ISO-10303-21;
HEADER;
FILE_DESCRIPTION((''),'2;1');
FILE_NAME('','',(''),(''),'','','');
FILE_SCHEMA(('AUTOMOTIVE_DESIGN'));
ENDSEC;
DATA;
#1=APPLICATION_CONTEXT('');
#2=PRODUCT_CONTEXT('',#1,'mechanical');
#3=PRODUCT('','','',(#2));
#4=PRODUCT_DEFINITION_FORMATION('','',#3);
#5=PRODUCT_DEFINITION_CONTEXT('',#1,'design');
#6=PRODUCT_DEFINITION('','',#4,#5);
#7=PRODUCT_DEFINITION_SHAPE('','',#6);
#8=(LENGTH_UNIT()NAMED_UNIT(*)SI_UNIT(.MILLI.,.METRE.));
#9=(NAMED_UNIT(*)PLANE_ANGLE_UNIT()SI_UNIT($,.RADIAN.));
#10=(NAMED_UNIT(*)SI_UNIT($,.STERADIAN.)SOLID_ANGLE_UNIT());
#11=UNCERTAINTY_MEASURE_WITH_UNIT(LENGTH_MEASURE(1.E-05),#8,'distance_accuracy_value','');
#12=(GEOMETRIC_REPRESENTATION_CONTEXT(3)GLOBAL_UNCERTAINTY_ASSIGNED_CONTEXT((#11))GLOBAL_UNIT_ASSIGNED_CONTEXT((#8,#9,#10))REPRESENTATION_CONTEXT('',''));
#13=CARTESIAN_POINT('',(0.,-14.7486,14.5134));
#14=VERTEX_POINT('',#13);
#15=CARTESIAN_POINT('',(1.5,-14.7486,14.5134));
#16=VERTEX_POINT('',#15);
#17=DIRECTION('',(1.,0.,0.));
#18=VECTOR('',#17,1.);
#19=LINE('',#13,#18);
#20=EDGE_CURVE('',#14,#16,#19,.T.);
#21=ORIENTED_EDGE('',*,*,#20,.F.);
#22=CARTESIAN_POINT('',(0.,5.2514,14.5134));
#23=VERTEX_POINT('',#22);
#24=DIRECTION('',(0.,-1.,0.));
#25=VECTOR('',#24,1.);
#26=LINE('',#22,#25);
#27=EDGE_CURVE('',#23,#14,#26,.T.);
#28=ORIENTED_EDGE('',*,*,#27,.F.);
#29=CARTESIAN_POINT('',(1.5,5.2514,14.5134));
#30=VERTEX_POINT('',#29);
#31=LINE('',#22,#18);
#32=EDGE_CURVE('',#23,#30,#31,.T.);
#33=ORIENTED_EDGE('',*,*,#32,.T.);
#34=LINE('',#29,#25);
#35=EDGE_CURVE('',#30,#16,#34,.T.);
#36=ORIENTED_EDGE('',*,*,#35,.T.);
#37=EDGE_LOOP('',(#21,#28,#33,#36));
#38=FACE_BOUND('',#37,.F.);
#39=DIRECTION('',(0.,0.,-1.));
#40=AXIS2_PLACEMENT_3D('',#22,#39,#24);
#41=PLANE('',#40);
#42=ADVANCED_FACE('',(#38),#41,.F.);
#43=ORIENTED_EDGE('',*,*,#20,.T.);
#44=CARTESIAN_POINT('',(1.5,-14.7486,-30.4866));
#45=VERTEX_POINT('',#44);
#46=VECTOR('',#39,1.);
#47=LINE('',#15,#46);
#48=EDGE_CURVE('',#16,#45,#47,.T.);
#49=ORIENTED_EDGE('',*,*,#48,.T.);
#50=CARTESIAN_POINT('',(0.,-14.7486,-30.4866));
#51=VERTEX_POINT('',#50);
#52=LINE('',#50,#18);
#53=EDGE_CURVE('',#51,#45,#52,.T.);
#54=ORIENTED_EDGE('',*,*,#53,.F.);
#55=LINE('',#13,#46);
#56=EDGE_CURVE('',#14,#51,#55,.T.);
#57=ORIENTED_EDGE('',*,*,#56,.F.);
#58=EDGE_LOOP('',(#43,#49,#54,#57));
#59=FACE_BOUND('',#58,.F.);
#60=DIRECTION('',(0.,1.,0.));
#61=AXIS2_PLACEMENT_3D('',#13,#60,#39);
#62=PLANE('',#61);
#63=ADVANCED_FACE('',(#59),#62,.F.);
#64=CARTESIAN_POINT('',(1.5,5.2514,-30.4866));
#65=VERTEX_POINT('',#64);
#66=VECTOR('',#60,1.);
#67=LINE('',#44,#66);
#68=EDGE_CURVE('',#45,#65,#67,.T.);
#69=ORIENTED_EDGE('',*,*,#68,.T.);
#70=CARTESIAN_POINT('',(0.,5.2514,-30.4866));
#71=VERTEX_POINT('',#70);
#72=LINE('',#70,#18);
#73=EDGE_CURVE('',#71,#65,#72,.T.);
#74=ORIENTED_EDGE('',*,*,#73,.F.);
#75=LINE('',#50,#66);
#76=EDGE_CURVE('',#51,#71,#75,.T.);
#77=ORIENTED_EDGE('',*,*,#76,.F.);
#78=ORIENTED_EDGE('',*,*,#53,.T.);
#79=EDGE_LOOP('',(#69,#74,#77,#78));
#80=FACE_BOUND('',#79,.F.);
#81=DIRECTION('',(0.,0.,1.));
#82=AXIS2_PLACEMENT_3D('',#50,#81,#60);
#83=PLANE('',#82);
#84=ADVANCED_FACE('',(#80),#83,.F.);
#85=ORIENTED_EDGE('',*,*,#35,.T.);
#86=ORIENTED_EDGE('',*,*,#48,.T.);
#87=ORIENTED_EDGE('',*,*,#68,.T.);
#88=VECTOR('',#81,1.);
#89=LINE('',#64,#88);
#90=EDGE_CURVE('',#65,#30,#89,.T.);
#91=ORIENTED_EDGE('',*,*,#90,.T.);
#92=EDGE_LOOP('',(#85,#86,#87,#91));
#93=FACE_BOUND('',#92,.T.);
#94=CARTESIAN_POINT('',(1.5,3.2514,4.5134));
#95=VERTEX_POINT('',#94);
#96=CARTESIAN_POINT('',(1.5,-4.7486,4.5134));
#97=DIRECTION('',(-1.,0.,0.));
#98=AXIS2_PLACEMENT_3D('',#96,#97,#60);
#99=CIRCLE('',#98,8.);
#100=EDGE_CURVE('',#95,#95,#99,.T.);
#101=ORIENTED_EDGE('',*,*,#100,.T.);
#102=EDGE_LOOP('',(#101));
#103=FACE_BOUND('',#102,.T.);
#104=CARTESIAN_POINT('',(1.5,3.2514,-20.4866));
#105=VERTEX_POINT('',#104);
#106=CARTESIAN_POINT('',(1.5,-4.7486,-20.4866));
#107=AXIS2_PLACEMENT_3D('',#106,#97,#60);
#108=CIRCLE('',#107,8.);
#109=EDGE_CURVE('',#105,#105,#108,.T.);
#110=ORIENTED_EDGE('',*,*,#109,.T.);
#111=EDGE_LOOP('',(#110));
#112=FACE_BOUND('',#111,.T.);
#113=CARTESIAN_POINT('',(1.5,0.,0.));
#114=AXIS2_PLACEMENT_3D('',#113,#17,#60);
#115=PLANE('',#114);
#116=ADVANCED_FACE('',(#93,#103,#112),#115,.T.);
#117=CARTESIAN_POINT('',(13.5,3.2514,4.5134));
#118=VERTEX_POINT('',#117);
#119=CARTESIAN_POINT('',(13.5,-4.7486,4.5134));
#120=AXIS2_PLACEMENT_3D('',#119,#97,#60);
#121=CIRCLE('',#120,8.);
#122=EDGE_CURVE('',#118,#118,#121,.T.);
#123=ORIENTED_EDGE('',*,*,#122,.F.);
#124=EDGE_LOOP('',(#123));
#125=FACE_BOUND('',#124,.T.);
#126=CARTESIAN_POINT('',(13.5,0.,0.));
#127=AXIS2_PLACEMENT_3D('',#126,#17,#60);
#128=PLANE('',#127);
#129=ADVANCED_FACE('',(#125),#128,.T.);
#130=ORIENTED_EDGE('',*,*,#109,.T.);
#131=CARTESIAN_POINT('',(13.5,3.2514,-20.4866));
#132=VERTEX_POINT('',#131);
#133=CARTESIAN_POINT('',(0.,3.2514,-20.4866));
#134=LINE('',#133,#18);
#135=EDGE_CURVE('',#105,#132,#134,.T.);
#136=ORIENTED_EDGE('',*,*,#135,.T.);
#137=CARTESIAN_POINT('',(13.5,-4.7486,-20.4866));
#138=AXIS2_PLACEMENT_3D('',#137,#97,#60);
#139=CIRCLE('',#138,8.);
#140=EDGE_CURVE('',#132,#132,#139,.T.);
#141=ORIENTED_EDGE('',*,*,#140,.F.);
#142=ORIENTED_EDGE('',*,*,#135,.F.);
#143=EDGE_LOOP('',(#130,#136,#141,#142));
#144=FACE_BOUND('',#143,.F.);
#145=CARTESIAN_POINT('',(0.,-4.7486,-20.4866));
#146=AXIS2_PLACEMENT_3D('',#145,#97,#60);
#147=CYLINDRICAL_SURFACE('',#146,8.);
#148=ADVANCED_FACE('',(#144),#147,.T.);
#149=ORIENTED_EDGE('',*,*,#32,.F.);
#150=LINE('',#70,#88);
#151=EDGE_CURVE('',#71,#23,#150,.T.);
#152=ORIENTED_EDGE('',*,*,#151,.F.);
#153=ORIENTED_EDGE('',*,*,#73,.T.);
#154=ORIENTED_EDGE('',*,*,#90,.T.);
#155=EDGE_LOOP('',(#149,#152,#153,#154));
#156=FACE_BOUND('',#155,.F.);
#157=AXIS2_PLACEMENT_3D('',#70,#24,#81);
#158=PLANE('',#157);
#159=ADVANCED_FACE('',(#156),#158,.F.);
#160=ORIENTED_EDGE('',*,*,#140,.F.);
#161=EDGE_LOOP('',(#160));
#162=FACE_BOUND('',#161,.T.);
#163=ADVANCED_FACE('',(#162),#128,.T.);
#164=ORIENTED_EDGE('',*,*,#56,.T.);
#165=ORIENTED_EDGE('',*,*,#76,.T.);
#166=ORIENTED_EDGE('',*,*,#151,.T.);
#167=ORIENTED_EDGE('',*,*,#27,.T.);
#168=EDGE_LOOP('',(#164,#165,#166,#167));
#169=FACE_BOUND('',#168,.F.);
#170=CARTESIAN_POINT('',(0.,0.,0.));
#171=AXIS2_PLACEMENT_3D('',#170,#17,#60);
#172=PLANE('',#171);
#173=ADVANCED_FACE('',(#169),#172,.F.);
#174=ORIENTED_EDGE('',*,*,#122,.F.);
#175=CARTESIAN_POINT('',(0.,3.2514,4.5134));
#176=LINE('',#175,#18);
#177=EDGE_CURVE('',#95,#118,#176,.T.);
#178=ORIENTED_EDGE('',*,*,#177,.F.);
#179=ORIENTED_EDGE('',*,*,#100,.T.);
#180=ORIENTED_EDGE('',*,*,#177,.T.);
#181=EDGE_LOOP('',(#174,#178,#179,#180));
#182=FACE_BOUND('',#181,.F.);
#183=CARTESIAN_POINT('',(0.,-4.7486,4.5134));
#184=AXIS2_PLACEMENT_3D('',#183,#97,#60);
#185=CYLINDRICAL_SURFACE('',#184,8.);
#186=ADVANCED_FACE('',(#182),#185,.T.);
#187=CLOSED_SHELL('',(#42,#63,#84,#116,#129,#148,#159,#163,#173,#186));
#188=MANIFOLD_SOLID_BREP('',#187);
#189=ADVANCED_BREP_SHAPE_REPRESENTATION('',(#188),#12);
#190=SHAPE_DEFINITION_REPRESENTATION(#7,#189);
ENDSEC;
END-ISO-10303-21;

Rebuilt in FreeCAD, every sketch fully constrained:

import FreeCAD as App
import Part
import Sketcher


def add_polygon(sketch, points):
    """Adds a closed chain of lines whose ends are joined by coincident constraints."""
    first, n = sketch.GeometryCount, len(points)
    for a, b in zip(points, points[1:] + points[:1]):
        sketch.addGeometry(Part.LineSegment(App.Vector(*a, 0), App.Vector(*b, 0)), False)
    for i in range(n):
        sketch.addConstraint(Sketcher.Constraint("Coincident", first + i, 2, first + (i + 1) % n, 1))

doc = App.newDocument("Part")
body = doc.addObject("PartDesign::Body", "Body")

# Sketch on YZ plane
sketch1 = body.newObject("Sketcher::SketchObject", "Sketch")
sketch1.AttachmentSupport = (doc.getObject("YZ_Plane"), [""])
sketch1.MapMode = "FlatFace"
add_polygon(sketch1, [(5.2514, -30.4866), (5.2514, 14.5134), (-14.7486, 14.5134), (-14.7486, -30.4866)])  # lines 0-3
sketch1.addConstraint([
    Sketcher.Constraint("Vertical", 0),
    Sketcher.Constraint("Horizontal", 1),
    Sketcher.Constraint("Vertical", 2),
    Sketcher.Constraint("Horizontal", 3),
    Sketcher.Constraint("DistanceX", 1, 2, 1, 1, 20.0),
    Sketcher.Constraint("DistanceY", 0, 1, 0, 2, 45.0),
    Sketcher.Constraint("DistanceX", -1, 1, 0, 2, 5.2514),
    Sketcher.Constraint("DistanceY", -1, 1, 0, 2, 14.5134),
])
pad1 = body.newObject("PartDesign::Pad", "Pad")
pad1.Profile = sketch1
pad1.Length = 1.5

# Sketch on YZ plane
sketch2 = body.newObject("Sketcher::SketchObject", "Sketch001")
sketch2.AttachmentSupport = (doc.getObject("YZ_Plane"), [""])
sketch2.MapMode = "FlatFace"
sketch2.addGeometry([
    Part.Circle(App.Vector(-4.7486, 4.5134, 0), App.Vector(0, 0, 1), 8),
    Part.Circle(App.Vector(-4.7486, -20.4866, 0), App.Vector(0, 0, 1), 8),
], False)
sketch2.addConstraint([
    Sketcher.Constraint("Equal", 0, 1),
    Sketcher.Constraint("Vertical", 0, 3, 1, 3),
    Sketcher.Constraint("Diameter", 0, 16.0),
    Sketcher.Constraint("DistanceY", 1, 3, 0, 3, 25.0),
    Sketcher.Constraint("DistanceX", 0, 3, -1, 1, 4.7486),
    Sketcher.Constraint("DistanceY", -1, 1, 0, 3, 4.5134),
])
pad2 = body.newObject("PartDesign::Pad", "Pad001")
pad2.Profile = sketch2
pad2.Length = 13.5

doc.recompute()
